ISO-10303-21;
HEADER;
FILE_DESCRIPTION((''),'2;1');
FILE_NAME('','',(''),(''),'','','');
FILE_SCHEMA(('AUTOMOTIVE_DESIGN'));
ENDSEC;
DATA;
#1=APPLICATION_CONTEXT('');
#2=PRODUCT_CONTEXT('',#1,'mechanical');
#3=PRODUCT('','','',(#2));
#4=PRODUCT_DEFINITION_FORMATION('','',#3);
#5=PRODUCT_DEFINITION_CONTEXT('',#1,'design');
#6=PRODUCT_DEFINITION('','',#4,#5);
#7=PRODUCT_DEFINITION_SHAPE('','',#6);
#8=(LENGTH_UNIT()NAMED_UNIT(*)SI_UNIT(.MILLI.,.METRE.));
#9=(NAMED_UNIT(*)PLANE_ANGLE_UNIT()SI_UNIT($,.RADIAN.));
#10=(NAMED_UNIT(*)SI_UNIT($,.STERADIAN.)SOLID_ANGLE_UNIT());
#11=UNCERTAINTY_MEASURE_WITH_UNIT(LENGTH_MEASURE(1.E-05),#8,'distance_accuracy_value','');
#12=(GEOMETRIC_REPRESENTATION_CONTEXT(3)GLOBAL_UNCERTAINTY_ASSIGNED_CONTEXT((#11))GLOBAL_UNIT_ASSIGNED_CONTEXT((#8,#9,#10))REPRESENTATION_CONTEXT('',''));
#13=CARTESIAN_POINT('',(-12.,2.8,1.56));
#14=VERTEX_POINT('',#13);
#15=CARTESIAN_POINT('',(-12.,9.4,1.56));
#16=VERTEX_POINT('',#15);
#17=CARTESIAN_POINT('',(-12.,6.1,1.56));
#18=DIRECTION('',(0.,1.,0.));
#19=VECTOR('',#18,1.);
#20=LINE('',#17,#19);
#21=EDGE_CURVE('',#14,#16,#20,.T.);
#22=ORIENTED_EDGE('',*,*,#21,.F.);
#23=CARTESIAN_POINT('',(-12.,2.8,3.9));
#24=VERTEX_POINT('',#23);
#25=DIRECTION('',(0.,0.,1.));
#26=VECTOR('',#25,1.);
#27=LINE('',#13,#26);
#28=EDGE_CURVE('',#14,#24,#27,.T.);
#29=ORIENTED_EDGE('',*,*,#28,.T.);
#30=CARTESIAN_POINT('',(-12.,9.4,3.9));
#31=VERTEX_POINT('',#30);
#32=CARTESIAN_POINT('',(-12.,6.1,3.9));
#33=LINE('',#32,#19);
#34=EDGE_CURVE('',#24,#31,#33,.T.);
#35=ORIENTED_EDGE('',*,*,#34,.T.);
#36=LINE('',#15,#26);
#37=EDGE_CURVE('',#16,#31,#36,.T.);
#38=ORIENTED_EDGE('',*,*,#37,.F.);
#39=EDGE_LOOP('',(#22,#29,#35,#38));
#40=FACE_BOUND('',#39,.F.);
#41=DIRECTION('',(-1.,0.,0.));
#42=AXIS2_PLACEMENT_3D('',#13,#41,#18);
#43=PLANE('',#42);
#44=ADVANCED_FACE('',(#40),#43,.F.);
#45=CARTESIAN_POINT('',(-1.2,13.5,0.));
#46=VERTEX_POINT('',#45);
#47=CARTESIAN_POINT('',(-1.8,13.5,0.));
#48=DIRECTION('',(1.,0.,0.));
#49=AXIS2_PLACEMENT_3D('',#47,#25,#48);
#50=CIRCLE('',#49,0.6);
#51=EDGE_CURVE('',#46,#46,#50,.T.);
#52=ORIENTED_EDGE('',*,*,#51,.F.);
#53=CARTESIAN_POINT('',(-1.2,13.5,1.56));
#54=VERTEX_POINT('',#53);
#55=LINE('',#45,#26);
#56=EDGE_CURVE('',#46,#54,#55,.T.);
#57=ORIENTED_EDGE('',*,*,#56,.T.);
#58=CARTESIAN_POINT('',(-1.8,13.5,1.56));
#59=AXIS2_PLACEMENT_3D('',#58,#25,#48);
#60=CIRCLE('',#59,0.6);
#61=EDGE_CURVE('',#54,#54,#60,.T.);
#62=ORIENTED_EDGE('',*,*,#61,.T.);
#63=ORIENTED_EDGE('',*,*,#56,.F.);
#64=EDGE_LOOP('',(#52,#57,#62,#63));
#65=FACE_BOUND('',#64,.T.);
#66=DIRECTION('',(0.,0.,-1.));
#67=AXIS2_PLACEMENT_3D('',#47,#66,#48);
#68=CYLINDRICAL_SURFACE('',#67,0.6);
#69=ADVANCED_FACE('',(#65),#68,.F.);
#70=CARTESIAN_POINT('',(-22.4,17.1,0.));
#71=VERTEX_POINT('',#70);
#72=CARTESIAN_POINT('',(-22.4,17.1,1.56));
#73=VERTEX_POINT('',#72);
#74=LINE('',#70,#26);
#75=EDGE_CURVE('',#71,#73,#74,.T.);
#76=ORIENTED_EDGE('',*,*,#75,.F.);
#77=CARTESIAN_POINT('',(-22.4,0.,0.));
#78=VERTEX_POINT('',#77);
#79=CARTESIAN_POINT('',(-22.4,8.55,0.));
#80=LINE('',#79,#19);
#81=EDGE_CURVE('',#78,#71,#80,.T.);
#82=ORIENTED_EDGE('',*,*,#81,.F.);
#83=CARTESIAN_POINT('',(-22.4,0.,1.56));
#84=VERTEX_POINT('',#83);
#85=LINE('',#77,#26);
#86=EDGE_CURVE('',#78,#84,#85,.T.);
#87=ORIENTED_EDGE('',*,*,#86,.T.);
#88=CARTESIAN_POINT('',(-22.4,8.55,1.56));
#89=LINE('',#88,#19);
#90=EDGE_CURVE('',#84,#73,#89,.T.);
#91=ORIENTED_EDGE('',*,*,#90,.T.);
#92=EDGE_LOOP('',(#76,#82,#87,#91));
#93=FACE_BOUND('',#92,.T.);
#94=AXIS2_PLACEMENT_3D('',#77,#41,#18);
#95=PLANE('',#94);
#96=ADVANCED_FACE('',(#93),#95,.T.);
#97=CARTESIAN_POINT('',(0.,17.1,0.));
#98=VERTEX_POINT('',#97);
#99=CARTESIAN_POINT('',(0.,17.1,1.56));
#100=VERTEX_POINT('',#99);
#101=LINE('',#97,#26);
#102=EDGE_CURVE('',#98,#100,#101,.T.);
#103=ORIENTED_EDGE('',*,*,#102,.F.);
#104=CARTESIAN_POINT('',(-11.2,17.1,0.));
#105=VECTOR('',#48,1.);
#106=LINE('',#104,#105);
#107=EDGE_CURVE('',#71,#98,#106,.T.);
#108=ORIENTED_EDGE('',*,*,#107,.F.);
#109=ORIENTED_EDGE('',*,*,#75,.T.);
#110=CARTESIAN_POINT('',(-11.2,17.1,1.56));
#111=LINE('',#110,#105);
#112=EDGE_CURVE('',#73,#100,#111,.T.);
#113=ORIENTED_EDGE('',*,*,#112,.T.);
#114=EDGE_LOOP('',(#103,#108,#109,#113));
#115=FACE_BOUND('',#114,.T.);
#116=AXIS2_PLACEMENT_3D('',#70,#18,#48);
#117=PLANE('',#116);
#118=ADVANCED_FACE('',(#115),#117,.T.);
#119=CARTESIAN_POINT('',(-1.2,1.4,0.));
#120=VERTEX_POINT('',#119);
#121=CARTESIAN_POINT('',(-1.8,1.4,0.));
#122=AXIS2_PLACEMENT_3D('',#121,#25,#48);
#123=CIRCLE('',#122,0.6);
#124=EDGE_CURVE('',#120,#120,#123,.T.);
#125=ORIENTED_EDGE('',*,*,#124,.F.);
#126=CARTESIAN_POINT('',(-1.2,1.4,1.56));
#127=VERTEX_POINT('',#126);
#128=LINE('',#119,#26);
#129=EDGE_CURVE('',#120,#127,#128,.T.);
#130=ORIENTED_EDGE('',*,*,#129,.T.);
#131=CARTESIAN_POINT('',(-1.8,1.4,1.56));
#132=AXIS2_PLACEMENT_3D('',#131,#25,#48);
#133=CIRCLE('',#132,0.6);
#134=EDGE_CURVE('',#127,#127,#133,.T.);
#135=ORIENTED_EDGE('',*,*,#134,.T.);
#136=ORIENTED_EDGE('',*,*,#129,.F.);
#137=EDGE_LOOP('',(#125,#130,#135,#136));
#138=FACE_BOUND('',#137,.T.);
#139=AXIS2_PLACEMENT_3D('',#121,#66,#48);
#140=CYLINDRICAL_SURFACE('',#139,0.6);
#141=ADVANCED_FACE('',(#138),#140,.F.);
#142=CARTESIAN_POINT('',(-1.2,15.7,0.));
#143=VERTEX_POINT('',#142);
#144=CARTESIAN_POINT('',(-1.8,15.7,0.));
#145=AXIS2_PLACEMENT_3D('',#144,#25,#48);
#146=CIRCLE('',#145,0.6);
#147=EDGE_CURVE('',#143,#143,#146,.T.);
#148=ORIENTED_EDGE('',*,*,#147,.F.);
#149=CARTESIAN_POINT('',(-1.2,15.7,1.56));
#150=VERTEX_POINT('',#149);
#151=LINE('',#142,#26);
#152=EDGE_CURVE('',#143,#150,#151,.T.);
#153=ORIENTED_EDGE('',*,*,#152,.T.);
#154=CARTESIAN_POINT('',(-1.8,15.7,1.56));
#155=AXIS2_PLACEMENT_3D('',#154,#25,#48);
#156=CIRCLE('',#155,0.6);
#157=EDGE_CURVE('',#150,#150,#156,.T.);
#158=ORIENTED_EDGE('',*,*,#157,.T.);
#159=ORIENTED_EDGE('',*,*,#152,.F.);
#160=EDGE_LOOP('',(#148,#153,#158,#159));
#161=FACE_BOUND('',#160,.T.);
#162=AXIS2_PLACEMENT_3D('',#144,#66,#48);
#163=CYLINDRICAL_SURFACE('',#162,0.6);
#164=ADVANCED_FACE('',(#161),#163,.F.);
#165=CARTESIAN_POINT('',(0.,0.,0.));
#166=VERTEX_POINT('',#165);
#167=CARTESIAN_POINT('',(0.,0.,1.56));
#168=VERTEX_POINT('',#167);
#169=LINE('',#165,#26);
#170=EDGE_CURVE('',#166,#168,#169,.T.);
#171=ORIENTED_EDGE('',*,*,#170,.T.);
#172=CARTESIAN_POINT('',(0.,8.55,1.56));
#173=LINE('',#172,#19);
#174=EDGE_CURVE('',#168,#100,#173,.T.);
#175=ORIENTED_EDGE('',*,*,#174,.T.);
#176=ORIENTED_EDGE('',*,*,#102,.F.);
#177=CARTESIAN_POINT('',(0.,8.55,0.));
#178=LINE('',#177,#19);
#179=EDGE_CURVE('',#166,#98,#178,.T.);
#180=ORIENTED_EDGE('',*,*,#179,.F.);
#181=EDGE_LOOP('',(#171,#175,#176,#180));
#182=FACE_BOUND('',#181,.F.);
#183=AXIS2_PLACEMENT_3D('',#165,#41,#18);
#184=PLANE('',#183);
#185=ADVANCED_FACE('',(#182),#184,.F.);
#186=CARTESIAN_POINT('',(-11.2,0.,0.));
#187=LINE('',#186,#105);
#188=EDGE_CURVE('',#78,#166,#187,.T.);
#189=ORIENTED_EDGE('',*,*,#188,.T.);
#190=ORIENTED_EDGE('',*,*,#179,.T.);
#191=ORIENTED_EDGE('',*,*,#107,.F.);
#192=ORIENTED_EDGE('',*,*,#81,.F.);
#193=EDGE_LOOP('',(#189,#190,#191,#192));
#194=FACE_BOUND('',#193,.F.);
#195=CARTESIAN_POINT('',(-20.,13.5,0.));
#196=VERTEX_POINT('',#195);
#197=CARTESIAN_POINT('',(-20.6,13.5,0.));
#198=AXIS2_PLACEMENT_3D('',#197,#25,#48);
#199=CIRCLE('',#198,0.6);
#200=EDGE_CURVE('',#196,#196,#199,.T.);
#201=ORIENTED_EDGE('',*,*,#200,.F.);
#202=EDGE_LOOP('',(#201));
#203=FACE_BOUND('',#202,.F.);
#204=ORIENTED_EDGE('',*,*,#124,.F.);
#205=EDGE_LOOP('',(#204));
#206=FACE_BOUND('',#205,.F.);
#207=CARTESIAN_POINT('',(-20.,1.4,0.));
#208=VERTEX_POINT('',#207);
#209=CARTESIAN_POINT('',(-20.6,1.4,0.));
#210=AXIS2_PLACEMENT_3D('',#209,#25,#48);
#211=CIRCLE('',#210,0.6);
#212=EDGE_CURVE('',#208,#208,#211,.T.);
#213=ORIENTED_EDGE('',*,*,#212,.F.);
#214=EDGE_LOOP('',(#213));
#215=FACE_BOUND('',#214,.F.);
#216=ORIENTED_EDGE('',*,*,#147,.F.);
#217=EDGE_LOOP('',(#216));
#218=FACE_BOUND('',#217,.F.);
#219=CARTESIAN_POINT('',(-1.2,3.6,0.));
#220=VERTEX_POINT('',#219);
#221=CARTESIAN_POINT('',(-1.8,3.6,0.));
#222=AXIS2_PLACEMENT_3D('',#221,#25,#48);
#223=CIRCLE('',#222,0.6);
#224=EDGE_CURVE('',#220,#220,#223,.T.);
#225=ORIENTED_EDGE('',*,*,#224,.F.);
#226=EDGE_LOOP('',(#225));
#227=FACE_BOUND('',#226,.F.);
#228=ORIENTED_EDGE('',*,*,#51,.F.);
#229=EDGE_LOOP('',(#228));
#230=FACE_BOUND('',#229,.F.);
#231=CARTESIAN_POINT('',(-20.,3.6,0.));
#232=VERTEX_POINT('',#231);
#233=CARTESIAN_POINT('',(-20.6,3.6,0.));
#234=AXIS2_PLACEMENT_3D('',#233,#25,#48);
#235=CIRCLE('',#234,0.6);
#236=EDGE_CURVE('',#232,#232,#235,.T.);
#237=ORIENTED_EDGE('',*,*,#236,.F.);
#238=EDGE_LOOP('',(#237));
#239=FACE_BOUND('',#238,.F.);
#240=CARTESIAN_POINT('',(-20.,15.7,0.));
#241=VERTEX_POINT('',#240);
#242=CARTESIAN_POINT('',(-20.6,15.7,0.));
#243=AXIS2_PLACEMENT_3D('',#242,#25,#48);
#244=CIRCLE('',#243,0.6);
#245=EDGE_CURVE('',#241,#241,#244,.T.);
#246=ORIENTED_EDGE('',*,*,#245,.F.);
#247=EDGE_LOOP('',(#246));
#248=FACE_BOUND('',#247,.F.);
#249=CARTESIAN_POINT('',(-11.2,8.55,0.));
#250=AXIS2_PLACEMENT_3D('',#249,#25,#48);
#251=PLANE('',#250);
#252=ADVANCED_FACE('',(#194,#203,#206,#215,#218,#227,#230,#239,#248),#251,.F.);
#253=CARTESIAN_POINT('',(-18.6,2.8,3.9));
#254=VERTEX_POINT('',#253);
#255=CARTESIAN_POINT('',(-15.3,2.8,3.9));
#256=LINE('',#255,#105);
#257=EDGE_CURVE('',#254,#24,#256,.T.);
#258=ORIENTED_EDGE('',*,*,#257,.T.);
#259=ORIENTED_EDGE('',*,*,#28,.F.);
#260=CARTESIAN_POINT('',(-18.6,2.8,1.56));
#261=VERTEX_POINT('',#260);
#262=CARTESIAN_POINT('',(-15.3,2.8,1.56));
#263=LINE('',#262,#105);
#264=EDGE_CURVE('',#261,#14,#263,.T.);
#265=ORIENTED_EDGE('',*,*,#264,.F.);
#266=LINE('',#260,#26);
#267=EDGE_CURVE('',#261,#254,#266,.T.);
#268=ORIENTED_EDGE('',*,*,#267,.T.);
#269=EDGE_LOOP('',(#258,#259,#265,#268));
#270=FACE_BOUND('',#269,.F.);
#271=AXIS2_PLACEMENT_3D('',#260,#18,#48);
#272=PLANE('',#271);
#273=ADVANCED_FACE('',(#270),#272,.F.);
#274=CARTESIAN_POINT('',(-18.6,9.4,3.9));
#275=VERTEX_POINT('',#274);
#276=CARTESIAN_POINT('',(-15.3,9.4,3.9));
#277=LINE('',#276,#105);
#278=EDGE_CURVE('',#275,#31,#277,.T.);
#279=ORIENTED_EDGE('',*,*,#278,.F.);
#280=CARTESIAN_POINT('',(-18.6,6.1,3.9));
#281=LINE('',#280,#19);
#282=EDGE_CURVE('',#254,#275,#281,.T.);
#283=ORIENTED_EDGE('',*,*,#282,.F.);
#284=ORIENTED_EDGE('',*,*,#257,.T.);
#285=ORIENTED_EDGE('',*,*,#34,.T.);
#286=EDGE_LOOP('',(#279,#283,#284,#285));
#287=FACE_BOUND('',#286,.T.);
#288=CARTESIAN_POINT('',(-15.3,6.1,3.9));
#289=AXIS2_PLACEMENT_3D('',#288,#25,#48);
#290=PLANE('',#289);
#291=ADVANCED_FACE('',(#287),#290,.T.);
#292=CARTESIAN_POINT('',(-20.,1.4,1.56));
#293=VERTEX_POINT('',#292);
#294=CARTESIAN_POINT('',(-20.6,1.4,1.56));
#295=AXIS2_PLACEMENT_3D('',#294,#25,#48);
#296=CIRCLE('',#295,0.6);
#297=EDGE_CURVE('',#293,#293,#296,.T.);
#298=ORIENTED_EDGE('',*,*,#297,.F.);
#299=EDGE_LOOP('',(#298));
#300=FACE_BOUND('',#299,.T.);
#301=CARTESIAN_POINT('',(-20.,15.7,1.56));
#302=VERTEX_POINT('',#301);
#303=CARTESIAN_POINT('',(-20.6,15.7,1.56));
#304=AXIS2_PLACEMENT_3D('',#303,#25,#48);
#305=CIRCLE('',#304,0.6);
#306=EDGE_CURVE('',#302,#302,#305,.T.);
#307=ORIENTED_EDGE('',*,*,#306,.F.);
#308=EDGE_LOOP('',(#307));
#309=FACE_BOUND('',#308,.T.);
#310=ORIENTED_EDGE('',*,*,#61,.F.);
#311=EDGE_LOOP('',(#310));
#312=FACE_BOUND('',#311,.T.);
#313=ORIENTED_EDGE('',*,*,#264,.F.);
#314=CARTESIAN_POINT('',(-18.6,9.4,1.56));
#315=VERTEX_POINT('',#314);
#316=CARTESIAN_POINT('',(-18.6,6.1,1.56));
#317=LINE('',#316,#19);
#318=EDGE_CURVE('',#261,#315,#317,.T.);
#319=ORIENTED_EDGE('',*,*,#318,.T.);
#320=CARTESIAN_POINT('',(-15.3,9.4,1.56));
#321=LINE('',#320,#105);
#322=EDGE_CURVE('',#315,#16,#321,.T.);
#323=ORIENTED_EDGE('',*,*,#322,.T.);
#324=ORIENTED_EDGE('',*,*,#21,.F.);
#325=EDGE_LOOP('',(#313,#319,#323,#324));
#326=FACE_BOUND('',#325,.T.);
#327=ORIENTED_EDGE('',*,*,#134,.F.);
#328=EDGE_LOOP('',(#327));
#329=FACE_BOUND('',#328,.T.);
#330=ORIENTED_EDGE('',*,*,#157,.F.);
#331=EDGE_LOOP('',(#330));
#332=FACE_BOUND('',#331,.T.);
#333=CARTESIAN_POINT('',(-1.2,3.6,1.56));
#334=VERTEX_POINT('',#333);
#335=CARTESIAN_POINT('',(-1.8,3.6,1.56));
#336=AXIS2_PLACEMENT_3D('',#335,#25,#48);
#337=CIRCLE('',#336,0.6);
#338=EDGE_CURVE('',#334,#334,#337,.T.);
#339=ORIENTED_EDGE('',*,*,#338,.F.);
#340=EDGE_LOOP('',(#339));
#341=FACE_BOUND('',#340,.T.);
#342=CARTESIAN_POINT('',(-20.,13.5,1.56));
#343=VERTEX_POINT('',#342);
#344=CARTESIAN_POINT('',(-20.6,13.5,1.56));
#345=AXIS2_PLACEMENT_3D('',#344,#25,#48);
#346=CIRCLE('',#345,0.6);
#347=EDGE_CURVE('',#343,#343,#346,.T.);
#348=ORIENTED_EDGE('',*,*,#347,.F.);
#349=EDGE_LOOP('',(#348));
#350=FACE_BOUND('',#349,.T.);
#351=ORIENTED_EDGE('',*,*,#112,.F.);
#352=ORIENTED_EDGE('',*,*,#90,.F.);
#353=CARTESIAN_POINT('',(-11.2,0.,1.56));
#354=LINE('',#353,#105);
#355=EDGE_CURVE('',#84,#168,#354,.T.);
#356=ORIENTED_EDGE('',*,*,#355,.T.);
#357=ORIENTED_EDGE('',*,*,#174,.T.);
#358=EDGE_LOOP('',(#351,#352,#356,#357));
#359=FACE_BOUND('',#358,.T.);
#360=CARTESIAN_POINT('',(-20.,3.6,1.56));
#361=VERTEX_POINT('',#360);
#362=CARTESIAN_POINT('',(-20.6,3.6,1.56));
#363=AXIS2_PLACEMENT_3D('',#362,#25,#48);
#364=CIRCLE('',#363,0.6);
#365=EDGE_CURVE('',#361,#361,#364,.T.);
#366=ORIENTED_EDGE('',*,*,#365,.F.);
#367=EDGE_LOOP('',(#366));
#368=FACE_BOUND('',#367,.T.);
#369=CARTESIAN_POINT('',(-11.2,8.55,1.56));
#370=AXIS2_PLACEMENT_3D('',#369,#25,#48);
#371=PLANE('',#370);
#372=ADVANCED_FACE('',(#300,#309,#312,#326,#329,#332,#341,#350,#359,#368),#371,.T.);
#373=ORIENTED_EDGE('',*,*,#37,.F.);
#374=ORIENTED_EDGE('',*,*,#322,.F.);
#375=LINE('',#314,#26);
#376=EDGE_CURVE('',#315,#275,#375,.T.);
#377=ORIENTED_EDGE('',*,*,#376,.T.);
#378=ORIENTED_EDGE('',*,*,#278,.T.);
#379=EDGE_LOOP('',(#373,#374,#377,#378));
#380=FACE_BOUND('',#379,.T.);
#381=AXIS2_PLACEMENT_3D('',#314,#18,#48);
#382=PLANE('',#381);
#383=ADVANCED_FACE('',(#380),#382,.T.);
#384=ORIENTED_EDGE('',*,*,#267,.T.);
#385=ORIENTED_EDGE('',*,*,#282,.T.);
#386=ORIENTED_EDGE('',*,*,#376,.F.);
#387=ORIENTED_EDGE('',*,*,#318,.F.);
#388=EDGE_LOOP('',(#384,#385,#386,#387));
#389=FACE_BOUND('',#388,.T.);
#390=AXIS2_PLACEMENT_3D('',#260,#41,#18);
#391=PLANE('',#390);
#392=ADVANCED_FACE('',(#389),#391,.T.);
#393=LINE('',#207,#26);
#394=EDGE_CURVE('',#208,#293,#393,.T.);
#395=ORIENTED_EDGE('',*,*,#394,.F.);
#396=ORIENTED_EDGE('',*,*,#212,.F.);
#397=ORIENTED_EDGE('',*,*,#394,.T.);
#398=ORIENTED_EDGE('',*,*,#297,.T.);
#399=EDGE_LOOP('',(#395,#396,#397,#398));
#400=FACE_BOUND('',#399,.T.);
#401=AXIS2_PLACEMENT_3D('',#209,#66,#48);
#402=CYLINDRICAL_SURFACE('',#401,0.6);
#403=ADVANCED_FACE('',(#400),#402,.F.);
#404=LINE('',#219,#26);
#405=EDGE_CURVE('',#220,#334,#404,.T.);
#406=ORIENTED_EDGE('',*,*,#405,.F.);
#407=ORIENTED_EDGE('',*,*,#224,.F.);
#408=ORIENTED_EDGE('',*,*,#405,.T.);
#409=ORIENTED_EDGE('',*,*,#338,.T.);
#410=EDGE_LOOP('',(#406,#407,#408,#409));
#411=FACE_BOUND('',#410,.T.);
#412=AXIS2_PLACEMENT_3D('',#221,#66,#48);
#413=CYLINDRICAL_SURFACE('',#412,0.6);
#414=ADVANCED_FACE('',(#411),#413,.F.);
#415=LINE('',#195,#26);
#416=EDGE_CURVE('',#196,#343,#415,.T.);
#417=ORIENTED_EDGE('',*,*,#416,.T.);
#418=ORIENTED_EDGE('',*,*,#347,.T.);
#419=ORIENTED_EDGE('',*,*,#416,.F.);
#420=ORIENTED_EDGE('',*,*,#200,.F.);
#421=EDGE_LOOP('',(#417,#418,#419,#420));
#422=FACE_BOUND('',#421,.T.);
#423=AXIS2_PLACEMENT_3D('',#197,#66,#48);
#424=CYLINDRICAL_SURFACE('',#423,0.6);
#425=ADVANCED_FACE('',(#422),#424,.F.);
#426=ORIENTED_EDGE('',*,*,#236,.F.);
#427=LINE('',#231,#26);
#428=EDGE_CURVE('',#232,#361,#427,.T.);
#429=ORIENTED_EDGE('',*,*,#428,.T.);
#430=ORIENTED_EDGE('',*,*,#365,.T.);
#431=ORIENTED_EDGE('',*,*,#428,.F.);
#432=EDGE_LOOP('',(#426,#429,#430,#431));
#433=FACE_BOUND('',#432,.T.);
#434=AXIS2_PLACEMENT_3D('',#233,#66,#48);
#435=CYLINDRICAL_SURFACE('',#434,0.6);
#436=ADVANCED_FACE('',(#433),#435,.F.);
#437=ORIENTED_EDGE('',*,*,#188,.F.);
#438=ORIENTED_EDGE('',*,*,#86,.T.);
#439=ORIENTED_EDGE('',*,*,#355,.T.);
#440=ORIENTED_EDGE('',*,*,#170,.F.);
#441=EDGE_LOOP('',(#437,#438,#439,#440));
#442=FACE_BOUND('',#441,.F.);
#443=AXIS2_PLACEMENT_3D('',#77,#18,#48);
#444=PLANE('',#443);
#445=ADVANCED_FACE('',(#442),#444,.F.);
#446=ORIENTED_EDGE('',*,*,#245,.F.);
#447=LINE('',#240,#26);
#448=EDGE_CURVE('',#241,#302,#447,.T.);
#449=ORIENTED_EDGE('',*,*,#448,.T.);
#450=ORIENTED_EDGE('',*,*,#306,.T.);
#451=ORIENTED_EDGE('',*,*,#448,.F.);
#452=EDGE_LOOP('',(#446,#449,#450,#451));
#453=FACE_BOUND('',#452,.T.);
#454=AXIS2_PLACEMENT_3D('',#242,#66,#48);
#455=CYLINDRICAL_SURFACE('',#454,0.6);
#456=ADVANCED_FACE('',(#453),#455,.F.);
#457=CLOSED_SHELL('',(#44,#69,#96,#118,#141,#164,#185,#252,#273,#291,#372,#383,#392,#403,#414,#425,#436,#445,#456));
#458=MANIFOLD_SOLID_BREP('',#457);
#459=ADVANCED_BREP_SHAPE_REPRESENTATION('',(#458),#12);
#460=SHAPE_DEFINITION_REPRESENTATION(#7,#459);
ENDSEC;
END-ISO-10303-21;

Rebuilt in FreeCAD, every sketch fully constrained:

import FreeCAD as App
import Part
import Sketcher
from FreeCAD import Vector


def add_polygon(sketch, points):
    """Adds a closed chain of lines whose ends are joined by coincident constraints."""
    first, n = sketch.GeometryCount, len(points)
    for a, b in zip(points, points[1:] + points[:1]):
        sketch.addGeometry(Part.LineSegment(App.Vector(*a, 0), App.Vector(*b, 0)), False)
    for i in range(n):
        sketch.addConstraint(Sketcher.Constraint("Coincident", first + i, 2, first + (i + 1) % n, 1))

doc = App.newDocument("Part")
body = doc.addObject("PartDesign::Body", "Body")

# Sketch on XY plane
sketch1 = body.newObject("Sketcher::SketchObject", "Sketch")
sketch1.AttachmentSupport = (doc.getObject("XY_Plane"), [""])
sketch1.MapMode = "FlatFace"
add_polygon(sketch1, [(-22.4, 17.1), (-22.4, 0), (0, 0), (0, 17.1)])  # lines 0-3
sketch1.addGeometry(Part.Circle(Vector(-20.6, 1.4, 0), Vector(0, 0, 1), 0.6), False)  # 4
sketch1.addGeometry(Part.Circle(Vector(-20.6, 3.6, 0), Vector(0, 0, 1), 0.6), False)  # 5
sketch1.addGeometry(Part.Circle(Vector(-1.8, 1.4, 0), Vector(0, 0, 1), 0.6), False)  # 6
sketch1.addGeometry(Part.Circle(Vector(-1.8, 3.6, 0), Vector(0, 0, 1), 0.6), False)  # 7
sketch1.addGeometry(Part.Circle(Vector(-20.6, 13.5, 0), Vector(0, 0, 1), 0.6), False)  # 8
sketch1.addGeometry(Part.Circle(Vector(-20.6, 15.7, 0), Vector(0, 0, 1), 0.6), False)  # 9
sketch1.addGeometry(Part.Circle(Vector(-1.8, 13.5, 0), Vector(0, 0, 1), 0.6), False)  # 10
sketch1.addGeometry(Part.Circle(Vector(-1.8, 15.7, 0), Vector(0, 0, 1), 0.6), False)  # 11
sketch1.addConstraint(Sketcher.Constraint("Vertical", 0))
sketch1.addConstraint(Sketcher.Constraint("Horizontal", 1))
sketch1.addConstraint(Sketcher.Constraint("Vertical", 2))
sketch1.addConstraint(Sketcher.Constraint("Horizontal", 3))
sketch1.addConstraint(Sketcher.Constraint("Coincident", 1, 2, -1, 1))
sketch1.addConstraint(Sketcher.Constraint("Equal", 4, 5))
sketch1.addConstraint(Sketcher.Constraint("Equal", 5, 6))
sketch1.addConstraint(Sketcher.Constraint("Equal", 6, 7))
sketch1.addConstraint(Sketcher.Constraint("Equal", 7, 8))
sketch1.addConstraint(Sketcher.Constraint("Equal", 8, 9))
sketch1.addConstraint(Sketcher.Constraint("Equal", 9, 10))
sketch1.addConstraint(Sketcher.Constraint("Equal", 10, 11))
sketch1.addConstraint(Sketcher.Constraint("Horizontal", 4, 3, 6, 3))
sketch1.addConstraint(Sketcher.Constraint("Horizontal", 5, 3, 7, 3))
sketch1.addConstraint(Sketcher.Constraint("Horizontal", 8, 3, 10, 3))
sketch1.addConstraint(Sketcher.Constraint("Horizontal", 9, 3, 11, 3))
sketch1.addConstraint(Sketcher.Constraint("Vertical", 4, 3, 5, 3))
sketch1.addConstraint(Sketcher.Constraint("Vertical", 6, 3, 7, 3))
sketch1.addConstraint(Sketcher.Constraint("Vertical", 5, 3, 8, 3))
sketch1.addConstraint(Sketcher.Constraint("Vertical", 8, 3, 9, 3))
sketch1.addConstraint(Sketcher.Constraint("Vertical", 7, 3, 10, 3))
sketch1.addConstraint(Sketcher.Constraint("Vertical", 10, 3, 11, 3))
sketch1.addConstraint(Sketcher.Constraint("Diameter", 4, 1.2))
sketch1.addConstraint(Sketcher.Constraint("DistanceX", 1, 1, 1, 2, 22.4))
sketch1.addConstraint(Sketcher.Constraint("DistanceY", 0, 2, 0, 1, 17.1))
sketch1.addConstraint(Sketcher.Constraint("DistanceX", 4, 3, -1, 1, 20.6))
sketch1.addConstraint(Sketcher.Constraint("DistanceY", -1, 1, 4, 3, 1.4))
sketch1.addConstraint(Sketcher.Constraint("DistanceY", -1, 1, 5, 3, 3.6))
sketch1.addConstraint(Sketcher.Constraint("DistanceX", 6, 3, -1, 1, 1.8))
sketch1.addConstraint(Sketcher.Constraint("DistanceY", -1, 1, 8, 3, 13.5))
sketch1.addConstraint(Sketcher.Constraint("DistanceY", -1, 1, 9, 3, 15.7))
pad1 = body.newObject("PartDesign::Pad", "Pad")
pad1.Profile = sketch1
pad1.Length = 1.56

# Sketch on XY plane
sketch2 = body.newObject("Sketcher::SketchObject", "Sketch001")
sketch2.AttachmentSupport = (doc.getObject("XY_Plane"), [""])
sketch2.MapMode = "FlatFace"
sketch2.AttachmentOffset = App.Placement(Vector(0, 0, 1.56), App.Rotation())
add_polygon(sketch2, [(-18.6, 9.4), (-18.6, 2.8), (-12, 2.8), (-12, 9.4)])  # lines 0-3
sketch2.addConstraint(Sketcher.Constraint("Vertical", 0))
sketch2.addConstraint(Sketcher.Constraint("Horizontal", 1))
sketch2.addConstraint(Sketcher.Constraint("Vertical", 2))
sketch2.addConstraint(Sketcher.Constraint("Horizontal", 3))
sketch2.addConstraint(Sketcher.Constraint("Equal", 3, 0))
sketch2.addConstraint(Sketcher.Constraint("DistanceX", 1, 1, 1, 2, 6.6))
sketch2.addConstraint(Sketcher.Constraint("DistanceX", 1, 2, -1, 1, 12.0))
sketch2.addConstraint(Sketcher.Constraint("DistanceY", -1, 1, 0, 2, 2.8))
pad2 = body.newObject("PartDesign::Pad", "Pad001")
pad2.Profile = sketch2
pad2.Length = 2.34

doc.recompute()
